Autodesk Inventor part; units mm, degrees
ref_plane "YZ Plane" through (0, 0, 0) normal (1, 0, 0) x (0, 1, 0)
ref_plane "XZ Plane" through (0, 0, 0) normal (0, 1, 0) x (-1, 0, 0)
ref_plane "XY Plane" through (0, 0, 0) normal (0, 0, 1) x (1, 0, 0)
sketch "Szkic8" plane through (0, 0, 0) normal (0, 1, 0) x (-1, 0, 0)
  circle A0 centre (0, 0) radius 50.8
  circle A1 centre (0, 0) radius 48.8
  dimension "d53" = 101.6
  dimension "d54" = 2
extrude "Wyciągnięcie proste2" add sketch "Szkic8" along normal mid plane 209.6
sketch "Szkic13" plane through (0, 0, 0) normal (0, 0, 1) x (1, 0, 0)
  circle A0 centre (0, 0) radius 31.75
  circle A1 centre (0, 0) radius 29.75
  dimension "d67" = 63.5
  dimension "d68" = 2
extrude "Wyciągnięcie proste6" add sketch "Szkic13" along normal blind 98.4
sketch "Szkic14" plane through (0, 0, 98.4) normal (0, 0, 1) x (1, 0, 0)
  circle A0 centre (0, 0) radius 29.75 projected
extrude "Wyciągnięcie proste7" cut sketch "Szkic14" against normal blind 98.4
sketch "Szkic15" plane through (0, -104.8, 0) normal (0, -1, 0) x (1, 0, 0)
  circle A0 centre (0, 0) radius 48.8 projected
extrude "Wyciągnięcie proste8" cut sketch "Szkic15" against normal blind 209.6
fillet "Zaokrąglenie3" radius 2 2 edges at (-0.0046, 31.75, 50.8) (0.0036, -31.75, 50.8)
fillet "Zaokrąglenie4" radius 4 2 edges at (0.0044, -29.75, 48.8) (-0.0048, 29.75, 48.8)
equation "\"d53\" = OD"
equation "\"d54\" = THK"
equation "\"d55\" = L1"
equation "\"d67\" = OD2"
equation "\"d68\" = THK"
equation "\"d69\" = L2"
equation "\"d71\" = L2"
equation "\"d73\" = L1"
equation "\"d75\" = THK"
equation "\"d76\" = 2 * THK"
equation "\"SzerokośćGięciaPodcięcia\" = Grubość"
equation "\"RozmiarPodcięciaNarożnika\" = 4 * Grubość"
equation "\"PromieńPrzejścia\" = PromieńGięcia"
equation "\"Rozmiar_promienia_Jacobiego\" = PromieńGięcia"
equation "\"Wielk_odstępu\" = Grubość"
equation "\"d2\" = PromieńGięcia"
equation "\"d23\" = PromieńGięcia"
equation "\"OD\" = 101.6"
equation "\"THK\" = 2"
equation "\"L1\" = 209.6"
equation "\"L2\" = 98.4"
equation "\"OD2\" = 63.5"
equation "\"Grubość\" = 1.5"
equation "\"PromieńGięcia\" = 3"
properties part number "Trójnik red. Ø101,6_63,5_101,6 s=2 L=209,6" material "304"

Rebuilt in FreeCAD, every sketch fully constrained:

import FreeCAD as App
import Part
import Sketcher


def edges_at(feature, points):
    """Names of the edges that pass closest to the given points."""
    edges = feature.Shape.Edges
    near = lambda p: min(range(len(edges)), key=lambda i: edges[i].distToShape(Part.Vertex(*p))[0])
    return sorted({f"Edge{near(p) + 1}" for p in points})

doc = App.newDocument("Part")
body = doc.addObject("PartDesign::Body", "Body")

# Sketch on XZ plane
sketch1 = doc.addObject("Sketcher::SketchObject", "Sketch")
body.addObject(sketch1)
sketch1.AttachmentSupport = (doc.XZ_Plane, [""])
sketch1.MapMode = "FlatFace"
sketch1.addGeometry([
    Part.Circle(App.Vector(0, 0, 0), App.Vector(0, 0, 1), 51),
    Part.Circle(App.Vector(0, 0, 0), App.Vector(0, 0, 1), 49),
], False)
sketch1.addConstraint([
    Sketcher.Constraint("Coincident", 0, 3, -1, 1),
    Sketcher.Constraint("Coincident", 1, 3, -1, 1),
    Sketcher.Constraint("Diameter", 0, 101.6),
    Sketcher.Constraint("Diameter", 1, 97.6),
])
pad1 = doc.addObject("PartDesign::Pad", "Pad")
body.addObject(pad1)
pad1.Profile = sketch1
pad1.Length = 209.6
pad1.Midplane = True

# Sketch on XY plane
sketch2 = doc.addObject("Sketcher::SketchObject", "Sketch001")
body.addObject(sketch2)
sketch2.AttachmentSupport = (doc.XY_Plane, [""])
sketch2.MapMode = "FlatFace"
sketch2.addGeometry([
    Part.Circle(App.Vector(0, 0, 0), App.Vector(0, 0, 1), 32),
    Part.Circle(App.Vector(0, 0, 0), App.Vector(0, 0, 1), 30),
], False)
sketch2.addConstraint([
    Sketcher.Constraint("Coincident", 0, 3, -1, 1),
    Sketcher.Constraint("Coincident", 1, 3, -1, 1),
    Sketcher.Constraint("Diameter", 0, 63.5),
    Sketcher.Constraint("Diameter", 1, 59.5),
])
pad2 = doc.addObject("PartDesign::Pad", "Pad001")
body.addObject(pad2)
pad2.Profile = sketch2
pad2.Length = 98.4

# Sketch on XY plane
sketch3 = doc.addObject("Sketcher::SketchObject", "Sketch002")
body.addObject(sketch3)
sketch3.AttachmentSupport = (doc.XY_Plane, [""])
sketch3.MapMode = "FlatFace"
sketch3.AttachmentOffset = App.Placement(App.Vector(0, 0, 98.4), App.Rotation())
sketch3.addGeometry(Part.Circle(App.Vector(0, 0, 0), App.Vector(0, 0, 1), 30), False)
sketch3.addConstraint([
    Sketcher.Constraint("Coincident", 0, 3, -1, 1),
    Sketcher.Constraint("Diameter", 0, 59.5),
])
pocket1 = doc.addObject("PartDesign::Pocket", "Pocket")
body.addObject(pocket1)
pocket1.Profile = sketch3
pocket1.Length = 98.4

# Sketch on XZ plane
sketch4 = doc.addObject("Sketcher::SketchObject", "Sketch003")
body.addObject(sketch4)
sketch4.AttachmentSupport = (doc.XZ_Plane, [""])
sketch4.MapMode = "FlatFace"
sketch4.AttachmentOffset = App.Placement(App.Vector(0, 0, 104.8), App.Rotation())
sketch4.addGeometry(Part.Circle(App.Vector(0, 0, 0), App.Vector(0, 0, 1), 49), False)
sketch4.addConstraint([
    Sketcher.Constraint("Coincident", 0, 3, -1, 1),
    Sketcher.Constraint("Diameter", 0, 97.6),
])
pocket2 = doc.addObject("PartDesign::Pocket", "Pocket001")
body.addObject(pocket2)
pocket2.Profile = sketch4
pocket2.Length = 209.6
doc.recompute()

fillet = doc.addObject("PartDesign::Fillet", "Fillet")
body.addObject(fillet)
fillet.Base = (pocket2, edges_at(pocket2, [(-0.005, 31.75, 50.8), (0.004, -31.75, 50.8)]))
fillet.Radius = 2
doc.recompute()

fillet2 = doc.addObject("PartDesign::Fillet", "Fillet001")
body.addObject(fillet2)
fillet2.Base = (fillet, edges_at(fillet, [(0.004, -29.75, 48.8), (-0.005, 29.75, 48.8)]))
fillet2.Radius = 4

doc.recompute()
